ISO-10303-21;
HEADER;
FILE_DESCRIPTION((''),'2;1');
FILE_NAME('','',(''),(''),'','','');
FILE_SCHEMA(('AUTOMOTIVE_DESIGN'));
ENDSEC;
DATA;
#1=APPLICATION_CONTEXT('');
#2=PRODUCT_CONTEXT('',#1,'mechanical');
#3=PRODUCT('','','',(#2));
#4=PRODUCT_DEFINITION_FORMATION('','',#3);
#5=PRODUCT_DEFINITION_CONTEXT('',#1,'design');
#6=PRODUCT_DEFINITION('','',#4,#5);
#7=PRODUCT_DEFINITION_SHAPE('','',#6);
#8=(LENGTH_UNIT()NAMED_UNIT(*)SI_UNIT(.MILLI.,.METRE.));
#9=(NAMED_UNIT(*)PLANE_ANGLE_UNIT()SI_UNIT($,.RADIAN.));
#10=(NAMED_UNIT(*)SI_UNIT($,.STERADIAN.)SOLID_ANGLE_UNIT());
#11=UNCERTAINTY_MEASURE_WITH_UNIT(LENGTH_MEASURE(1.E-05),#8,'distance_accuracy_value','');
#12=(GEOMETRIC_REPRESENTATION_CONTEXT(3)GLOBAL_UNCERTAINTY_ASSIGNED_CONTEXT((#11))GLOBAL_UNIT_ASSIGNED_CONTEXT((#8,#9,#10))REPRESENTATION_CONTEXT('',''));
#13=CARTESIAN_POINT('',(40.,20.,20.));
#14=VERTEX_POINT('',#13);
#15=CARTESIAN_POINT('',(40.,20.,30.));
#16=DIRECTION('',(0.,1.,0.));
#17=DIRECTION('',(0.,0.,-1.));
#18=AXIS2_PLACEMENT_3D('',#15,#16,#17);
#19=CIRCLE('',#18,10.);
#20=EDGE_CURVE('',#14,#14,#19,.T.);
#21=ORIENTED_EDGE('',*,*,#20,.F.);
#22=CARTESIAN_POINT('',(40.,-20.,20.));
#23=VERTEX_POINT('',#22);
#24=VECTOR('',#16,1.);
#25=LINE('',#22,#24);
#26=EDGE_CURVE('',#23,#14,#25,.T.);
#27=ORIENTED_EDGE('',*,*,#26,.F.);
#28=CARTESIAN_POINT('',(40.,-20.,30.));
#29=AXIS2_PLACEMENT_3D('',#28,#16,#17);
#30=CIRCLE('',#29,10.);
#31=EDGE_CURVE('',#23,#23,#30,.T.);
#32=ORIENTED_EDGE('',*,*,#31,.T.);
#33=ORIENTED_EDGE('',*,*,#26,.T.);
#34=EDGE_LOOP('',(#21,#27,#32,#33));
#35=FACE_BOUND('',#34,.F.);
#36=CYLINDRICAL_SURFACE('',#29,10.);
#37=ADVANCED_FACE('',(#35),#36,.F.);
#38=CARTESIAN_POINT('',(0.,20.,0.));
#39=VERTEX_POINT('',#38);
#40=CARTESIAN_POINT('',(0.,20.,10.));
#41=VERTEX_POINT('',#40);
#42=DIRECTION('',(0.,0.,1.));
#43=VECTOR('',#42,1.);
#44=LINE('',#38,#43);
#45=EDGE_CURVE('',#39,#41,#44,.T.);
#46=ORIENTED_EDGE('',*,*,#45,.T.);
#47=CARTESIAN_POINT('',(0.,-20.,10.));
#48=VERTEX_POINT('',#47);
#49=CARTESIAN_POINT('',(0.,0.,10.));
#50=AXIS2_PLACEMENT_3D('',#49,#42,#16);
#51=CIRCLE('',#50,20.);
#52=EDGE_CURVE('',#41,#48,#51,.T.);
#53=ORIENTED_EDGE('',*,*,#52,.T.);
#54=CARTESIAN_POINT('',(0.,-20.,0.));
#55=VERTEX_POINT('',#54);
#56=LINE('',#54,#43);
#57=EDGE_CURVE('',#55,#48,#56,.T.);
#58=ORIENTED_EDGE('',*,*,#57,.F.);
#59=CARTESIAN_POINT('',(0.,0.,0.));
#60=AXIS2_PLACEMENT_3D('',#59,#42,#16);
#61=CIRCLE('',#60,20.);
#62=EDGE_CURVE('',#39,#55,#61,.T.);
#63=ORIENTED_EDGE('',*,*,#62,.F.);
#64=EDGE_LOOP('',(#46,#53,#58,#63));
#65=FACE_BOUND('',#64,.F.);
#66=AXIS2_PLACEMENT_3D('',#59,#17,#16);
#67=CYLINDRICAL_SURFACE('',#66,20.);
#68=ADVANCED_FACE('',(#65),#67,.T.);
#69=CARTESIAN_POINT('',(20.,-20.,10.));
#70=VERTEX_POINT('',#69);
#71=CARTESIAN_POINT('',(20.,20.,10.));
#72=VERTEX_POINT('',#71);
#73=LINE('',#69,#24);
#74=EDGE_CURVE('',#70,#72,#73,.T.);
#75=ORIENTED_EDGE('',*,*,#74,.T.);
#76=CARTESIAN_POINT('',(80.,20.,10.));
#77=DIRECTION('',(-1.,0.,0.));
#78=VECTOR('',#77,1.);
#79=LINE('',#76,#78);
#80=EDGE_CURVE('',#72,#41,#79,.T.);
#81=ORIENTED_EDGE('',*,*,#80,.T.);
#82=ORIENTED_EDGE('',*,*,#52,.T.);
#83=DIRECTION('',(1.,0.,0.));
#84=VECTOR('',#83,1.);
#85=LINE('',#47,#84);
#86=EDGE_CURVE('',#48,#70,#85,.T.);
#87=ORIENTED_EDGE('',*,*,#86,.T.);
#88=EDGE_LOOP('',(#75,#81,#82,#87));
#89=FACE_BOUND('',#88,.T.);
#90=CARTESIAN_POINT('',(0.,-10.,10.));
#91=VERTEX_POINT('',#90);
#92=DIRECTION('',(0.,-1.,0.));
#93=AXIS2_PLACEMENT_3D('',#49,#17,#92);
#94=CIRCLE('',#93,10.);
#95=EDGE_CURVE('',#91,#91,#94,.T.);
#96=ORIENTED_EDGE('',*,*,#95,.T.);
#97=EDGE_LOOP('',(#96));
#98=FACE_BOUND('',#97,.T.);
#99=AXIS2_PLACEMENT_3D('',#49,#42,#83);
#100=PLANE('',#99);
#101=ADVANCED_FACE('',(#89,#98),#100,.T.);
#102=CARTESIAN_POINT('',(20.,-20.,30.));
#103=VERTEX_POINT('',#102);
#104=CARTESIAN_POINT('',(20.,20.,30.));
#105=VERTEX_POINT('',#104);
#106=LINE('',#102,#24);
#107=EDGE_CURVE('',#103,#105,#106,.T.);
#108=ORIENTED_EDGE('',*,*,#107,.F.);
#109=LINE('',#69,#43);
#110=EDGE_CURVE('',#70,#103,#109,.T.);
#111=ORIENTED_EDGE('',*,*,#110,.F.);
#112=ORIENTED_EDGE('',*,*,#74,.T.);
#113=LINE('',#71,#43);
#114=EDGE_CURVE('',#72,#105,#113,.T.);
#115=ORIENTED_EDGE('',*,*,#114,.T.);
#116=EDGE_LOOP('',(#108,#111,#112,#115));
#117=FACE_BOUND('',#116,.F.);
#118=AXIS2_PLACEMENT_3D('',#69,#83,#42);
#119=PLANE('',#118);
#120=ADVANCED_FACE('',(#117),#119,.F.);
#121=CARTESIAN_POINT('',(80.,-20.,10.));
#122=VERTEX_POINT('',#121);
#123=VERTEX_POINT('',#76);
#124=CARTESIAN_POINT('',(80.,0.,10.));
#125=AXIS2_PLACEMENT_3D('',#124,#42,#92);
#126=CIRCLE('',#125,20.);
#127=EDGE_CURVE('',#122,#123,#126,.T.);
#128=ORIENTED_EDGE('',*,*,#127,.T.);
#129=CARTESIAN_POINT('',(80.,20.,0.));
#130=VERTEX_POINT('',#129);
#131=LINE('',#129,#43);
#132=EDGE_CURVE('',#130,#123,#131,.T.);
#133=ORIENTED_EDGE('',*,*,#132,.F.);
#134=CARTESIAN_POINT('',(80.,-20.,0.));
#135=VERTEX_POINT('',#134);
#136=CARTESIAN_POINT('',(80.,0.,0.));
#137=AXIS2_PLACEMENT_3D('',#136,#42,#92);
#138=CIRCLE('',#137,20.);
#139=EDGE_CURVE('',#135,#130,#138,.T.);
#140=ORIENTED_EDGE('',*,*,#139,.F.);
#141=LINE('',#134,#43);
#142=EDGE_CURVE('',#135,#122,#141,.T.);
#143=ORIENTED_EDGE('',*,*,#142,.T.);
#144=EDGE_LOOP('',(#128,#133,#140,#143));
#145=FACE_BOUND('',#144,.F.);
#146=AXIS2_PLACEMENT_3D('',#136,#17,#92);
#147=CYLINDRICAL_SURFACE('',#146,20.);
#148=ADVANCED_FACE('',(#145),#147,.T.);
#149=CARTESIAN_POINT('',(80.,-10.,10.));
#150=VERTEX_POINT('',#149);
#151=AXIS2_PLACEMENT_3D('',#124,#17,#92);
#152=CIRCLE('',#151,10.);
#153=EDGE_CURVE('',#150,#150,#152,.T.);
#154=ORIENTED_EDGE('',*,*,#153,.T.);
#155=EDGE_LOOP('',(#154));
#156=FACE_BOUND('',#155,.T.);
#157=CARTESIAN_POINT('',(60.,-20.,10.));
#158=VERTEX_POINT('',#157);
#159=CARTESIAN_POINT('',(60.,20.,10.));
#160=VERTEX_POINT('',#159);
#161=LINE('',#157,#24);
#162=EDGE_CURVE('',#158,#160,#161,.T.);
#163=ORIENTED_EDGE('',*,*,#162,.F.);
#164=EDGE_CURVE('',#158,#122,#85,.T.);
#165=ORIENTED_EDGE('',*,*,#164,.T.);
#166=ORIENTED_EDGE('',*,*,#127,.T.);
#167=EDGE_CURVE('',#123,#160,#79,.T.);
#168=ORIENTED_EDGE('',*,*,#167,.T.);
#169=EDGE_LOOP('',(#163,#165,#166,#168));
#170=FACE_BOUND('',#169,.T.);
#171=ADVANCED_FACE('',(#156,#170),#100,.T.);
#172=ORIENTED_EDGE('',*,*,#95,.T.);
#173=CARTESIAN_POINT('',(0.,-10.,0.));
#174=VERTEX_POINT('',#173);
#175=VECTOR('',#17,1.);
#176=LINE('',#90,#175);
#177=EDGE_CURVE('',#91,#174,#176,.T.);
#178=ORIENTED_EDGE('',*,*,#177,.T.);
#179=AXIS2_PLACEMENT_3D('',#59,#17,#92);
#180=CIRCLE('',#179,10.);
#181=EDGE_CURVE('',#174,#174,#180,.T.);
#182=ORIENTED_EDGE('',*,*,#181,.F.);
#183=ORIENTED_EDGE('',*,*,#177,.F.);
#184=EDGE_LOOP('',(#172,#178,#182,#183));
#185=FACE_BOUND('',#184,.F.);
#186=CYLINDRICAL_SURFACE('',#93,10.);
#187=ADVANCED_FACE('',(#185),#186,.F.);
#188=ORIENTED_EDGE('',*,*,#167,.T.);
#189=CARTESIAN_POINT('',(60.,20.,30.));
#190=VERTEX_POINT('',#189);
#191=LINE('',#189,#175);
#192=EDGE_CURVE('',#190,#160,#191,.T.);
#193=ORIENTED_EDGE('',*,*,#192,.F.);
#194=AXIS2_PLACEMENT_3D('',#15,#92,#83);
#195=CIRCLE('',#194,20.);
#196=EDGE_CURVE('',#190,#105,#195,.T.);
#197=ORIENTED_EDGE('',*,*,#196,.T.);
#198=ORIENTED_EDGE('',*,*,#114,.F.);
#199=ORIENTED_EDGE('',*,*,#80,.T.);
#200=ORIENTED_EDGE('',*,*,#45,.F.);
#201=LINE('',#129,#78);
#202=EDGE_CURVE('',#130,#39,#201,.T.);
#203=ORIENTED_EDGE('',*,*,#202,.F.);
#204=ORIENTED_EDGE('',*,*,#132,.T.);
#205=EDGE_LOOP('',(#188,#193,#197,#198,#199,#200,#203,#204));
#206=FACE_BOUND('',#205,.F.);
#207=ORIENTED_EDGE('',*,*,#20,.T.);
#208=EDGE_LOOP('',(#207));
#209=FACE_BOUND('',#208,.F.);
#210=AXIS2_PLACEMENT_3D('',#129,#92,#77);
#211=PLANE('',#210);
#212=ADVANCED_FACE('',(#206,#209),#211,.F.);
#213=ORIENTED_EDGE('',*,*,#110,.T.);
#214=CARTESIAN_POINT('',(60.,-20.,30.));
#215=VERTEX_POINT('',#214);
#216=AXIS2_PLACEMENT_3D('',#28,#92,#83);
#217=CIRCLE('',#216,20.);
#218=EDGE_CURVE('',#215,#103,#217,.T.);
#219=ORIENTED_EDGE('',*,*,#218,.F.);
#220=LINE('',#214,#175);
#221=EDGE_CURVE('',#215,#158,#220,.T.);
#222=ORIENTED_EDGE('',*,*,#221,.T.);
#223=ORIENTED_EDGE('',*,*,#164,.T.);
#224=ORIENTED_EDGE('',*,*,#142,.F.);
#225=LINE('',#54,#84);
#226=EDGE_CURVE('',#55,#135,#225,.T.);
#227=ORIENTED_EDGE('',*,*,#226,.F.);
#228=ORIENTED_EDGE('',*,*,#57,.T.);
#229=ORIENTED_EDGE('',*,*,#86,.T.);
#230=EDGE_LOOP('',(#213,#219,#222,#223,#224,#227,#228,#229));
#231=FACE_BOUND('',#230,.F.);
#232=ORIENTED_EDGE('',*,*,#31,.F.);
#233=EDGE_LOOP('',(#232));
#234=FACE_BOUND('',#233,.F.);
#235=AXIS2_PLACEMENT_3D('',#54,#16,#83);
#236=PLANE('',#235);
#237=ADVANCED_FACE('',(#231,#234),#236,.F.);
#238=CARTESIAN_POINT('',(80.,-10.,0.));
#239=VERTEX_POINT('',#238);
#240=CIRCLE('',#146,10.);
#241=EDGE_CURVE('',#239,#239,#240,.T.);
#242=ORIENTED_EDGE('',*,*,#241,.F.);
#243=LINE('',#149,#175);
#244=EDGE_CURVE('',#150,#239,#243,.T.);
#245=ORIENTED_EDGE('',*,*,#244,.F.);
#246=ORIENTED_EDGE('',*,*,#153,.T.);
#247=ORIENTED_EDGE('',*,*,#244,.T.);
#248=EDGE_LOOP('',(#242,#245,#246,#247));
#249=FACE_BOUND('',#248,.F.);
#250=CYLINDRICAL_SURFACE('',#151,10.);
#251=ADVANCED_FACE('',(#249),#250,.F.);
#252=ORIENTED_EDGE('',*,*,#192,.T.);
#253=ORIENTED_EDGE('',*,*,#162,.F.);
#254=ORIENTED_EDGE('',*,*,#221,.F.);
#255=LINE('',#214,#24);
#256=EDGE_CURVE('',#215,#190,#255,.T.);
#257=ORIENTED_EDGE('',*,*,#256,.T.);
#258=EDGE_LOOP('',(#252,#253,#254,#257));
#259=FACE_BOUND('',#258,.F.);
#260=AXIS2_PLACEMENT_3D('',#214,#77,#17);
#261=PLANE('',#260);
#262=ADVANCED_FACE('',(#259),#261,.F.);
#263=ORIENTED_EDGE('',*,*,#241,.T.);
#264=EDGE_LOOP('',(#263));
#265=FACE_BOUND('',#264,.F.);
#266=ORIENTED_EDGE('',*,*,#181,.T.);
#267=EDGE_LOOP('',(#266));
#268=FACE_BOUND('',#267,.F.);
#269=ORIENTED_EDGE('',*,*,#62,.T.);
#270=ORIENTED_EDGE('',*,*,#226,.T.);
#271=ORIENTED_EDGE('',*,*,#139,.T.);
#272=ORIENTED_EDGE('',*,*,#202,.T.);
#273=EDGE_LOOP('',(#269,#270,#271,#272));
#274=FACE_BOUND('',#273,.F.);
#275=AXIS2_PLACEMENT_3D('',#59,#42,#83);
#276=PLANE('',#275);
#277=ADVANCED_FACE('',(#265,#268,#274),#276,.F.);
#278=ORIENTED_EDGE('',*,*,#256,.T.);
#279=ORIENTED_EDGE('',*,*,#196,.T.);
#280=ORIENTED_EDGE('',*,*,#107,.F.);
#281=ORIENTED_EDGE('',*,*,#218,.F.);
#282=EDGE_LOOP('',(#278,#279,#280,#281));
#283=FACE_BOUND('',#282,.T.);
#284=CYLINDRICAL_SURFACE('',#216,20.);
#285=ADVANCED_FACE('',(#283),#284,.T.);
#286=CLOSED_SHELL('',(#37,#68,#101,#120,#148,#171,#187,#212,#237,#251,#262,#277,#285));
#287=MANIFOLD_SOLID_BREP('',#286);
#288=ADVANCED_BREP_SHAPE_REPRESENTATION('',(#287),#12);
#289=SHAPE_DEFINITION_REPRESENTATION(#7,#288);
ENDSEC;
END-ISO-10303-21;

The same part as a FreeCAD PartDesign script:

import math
import FreeCAD as App
import Part
import Sketcher

doc = App.newDocument("Part")
body = doc.addObject("PartDesign::Body", "Body")

sketch1 = body.newObject("Sketcher::SketchObject", "Sketch")
sketch1.AttachmentSupport = (doc.getObject("XY_Plane"), [""])
sketch1.MapMode = "FlatFace"
sketch1.addGeometry([
    Part.ArcOfCircle(Part.Circle(App.Vector(0, 0, 0), App.Vector(0, 0, 1), 20), math.radians(90), math.radians(270)),
    Part.LineSegment(App.Vector(0, -20, 0), App.Vector(80, -20, 0)),
    Part.ArcOfCircle(Part.Circle(App.Vector(80, 0, 0), App.Vector(0, 0, 1), 20), math.radians(-90), math.radians(90)),
    Part.LineSegment(App.Vector(80, 20, 0), App.Vector(0, 20, 0)),
], False)
sketch1.addConstraint([
    Sketcher.Constraint("Tangent", 0, 2, 1, 1),
    Sketcher.Constraint("Tangent", 1, 2, 2, 1),
    Sketcher.Constraint("Tangent", 2, 2, 3, 1),
    Sketcher.Constraint("Tangent", 3, 2, 0, 1),
    Sketcher.Constraint("Horizontal", 1),
    Sketcher.Constraint("Horizontal", 3),
    Sketcher.Constraint("Coincident", 0, 3, -1, 1),
    Sketcher.Constraint("Radius", 0, 20.0),
    Sketcher.Constraint("DistanceX", 1, 1, 1, 2, 80.0),
])
pad1 = body.newObject("PartDesign::Pad", "Pad")
pad1.Profile = sketch1
pad1.Length = 10

sketch2 = body.newObject("Sketcher::SketchObject", "Sketch001")
sketch2.AttachmentSupport = (doc.getObject("XZ_Plane"), [""])
sketch2.MapMode = "FlatFace"
sketch2.AttachmentOffset = App.Placement(App.Vector(0, 0, 20), App.Rotation())
sketch2.addGeometry([
    Part.LineSegment(App.Vector(20, 10, 0), App.Vector(60, 10, 0)),
    Part.LineSegment(App.Vector(60, 10, 0), App.Vector(60, 30, 0)),
    Part.ArcOfCircle(Part.Circle(App.Vector(40, 30, 0), App.Vector(0, 0, 1), 20), math.radians(0), math.radians(180)),
    Part.LineSegment(App.Vector(20, 30, 0), App.Vector(20, 10, 0)),
], False)
sketch2.addConstraint([
    Sketcher.Constraint("Coincident", 0, 2, 1, 1),
    Sketcher.Constraint("Tangent", 1, 2, 2, 1),
    Sketcher.Constraint("Tangent", 2, 2, 3, 1),
    Sketcher.Constraint("Coincident", 3, 2, 0, 1),
    Sketcher.Constraint("Horizontal", 0),
    Sketcher.Constraint("Vertical", 1),
    Sketcher.Constraint("Vertical", 3),
    Sketcher.Constraint("Radius", 2, 20.0),
    Sketcher.Constraint("DistanceY", 1, 1, 1, 2, 20.0),
    Sketcher.Constraint("DistanceX", -1, 1, 2, 2, 20.0),
    Sketcher.Constraint("DistanceY", -1, 1, 2, 3, 30.0),
])
pad2 = body.newObject("PartDesign::Pad", "Pad001")
pad2.Profile = sketch2
pad2.Length = 40
pad2.Reversed = True

sketch3 = body.newObject("Sketcher::SketchObject", "Sketch002")
sketch3.AttachmentSupport = (doc.getObject("XZ_Plane"), [""])
sketch3.MapMode = "FlatFace"
sketch3.AttachmentOffset = App.Placement(App.Vector(0, 0, 20), App.Rotation())
sketch3.addGeometry(Part.Circle(App.Vector(40, 30, 0), App.Vector(0, 0, 1), 10), False)
sketch3.addConstraint([
    Sketcher.Constraint("Diameter", 0, 20.0),
    Sketcher.Constraint("DistanceX", -1, 1, 0, 3, 40.0),
    Sketcher.Constraint("DistanceY", -1, 1, 0, 3, 30.0),
])
doc.recompute()
hole = body.newObject("PartDesign::Hole", "Hole")
hole.Profile = sketch3
hole.ThreadType = "None"
hole.Diameter = 20
hole.DepthType = "ThroughAll"

sketch4 = body.newObject("Sketcher::SketchObject", "Sketch003")
sketch4.AttachmentSupport = (doc.getObject("XY_Plane"), [""])
sketch4.MapMode = "FlatFace"
sketch4.AttachmentOffset = App.Placement(App.Vector(0, 0, 10), App.Rotation())
sketch4.addGeometry(Part.Circle(App.Vector(0, 0, 0), App.Vector(0, 0, 1), 10), False)
sketch4.addConstraint([
    Sketcher.Constraint("Coincident", 0, 3, -1, 1),
    Sketcher.Constraint("Diameter", 0, 20.0),
])
doc.recompute()
hole2 = body.newObject("PartDesign::Hole", "Hole001")
hole2.Profile = sketch4
hole2.ThreadType = "None"
hole2.Diameter = 20
hole2.DepthType = "ThroughAll"

sketch5 = body.newObject("Sketcher::SketchObject", "Sketch004")
sketch5.AttachmentSupport = (doc.getObject("XY_Plane"), [""])
sketch5.MapMode = "FlatFace"
sketch5.AttachmentOffset = App.Placement(App.Vector(0, 0, 10), App.Rotation())
sketch5.addGeometry(Part.Circle(App.Vector(80, 0, 0), App.Vector(0, 0, 1), 10), False)
sketch5.addConstraint([
    Sketcher.Constraint("PointOnObject", 0, 3, -1),
    Sketcher.Constraint("Diameter", 0, 20.0),
    Sketcher.Constraint("DistanceX", -1, 1, 0, 3, 80.0),
])
doc.recompute()
hole3 = body.newObject("PartDesign::Hole", "Hole002")
hole3.Profile = sketch5
hole3.ThreadType = "None"
hole3.Diameter = 20
hole3.DepthType = "ThroughAll"

doc.recompute()
